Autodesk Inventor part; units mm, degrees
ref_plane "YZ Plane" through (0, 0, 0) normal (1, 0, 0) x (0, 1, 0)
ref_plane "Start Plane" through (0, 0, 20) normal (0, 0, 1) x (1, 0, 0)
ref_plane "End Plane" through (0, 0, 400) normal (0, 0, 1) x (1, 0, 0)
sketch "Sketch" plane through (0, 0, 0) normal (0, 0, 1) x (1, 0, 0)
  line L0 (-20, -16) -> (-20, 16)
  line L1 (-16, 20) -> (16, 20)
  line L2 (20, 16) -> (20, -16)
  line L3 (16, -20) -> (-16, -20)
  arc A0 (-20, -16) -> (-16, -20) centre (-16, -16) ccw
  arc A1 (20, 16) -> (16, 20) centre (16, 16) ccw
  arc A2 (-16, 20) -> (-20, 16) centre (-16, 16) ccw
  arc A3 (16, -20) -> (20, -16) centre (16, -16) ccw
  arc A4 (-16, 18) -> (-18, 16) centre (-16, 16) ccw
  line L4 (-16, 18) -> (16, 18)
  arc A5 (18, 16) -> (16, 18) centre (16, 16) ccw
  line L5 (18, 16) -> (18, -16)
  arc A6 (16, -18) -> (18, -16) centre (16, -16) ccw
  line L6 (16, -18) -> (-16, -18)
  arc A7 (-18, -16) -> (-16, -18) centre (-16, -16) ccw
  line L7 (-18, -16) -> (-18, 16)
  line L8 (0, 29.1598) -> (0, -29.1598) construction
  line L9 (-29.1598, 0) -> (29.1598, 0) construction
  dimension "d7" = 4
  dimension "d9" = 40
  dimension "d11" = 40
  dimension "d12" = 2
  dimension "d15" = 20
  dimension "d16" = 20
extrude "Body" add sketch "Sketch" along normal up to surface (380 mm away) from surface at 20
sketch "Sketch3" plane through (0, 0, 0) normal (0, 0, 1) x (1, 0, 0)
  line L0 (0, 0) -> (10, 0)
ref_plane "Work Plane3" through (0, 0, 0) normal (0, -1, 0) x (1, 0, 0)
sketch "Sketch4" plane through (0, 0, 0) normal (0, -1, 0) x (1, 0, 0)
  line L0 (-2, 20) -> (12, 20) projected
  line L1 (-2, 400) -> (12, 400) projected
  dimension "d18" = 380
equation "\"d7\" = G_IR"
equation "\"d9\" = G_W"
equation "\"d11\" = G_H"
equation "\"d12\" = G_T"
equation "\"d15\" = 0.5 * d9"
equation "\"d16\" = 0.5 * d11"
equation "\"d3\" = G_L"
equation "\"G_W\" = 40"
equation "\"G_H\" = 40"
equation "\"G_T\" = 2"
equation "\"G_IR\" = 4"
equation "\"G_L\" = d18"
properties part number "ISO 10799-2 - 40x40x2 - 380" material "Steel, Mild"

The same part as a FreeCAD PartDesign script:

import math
import FreeCAD as App
import Part
import Sketcher
from FreeCAD import Vector
Q = App.Units.Quantity

doc = App.newDocument("Part")
body = doc.addObject("PartDesign::Body", "Body")

# Sketch on XY plane
sketch1 = body.newObject("Sketcher::SketchObject", "Sketch")
sketch1.AttachmentSupport = (doc.getObject("XY_Plane"), [""])
sketch1.MapMode = "FlatFace"
sketch1.AttachmentOffset = App.Placement(Vector(0, 0, 20), App.Rotation())
sketch1.addGeometry([
    Part.LineSegment(Vector(-20, 16, 0), Vector(-20, -16, 0)),  # 0
    Part.ArcOfCircle(Part.Circle(Vector(-16, -16, 0), Vector(0, 0, 1), 4), math.radians(180), math.radians(270)),  # 1
    Part.LineSegment(Vector(-16, -20, 0), Vector(16, -20, 0)),  # 2
    Part.ArcOfCircle(Part.Circle(Vector(16, -16, 0), Vector(0, 0, 1), 4), math.radians(-90), math.radians(0)),  # 3
    Part.LineSegment(Vector(20, -16, 0), Vector(20, 16, 0)),  # 4
    Part.ArcOfCircle(Part.Circle(Vector(16, 16, 0), Vector(0, 0, 1), 4), math.radians(0), math.radians(90)),  # 5
    Part.LineSegment(Vector(16, 20, 0), Vector(-16, 20, 0)),  # 6
    Part.ArcOfCircle(Part.Circle(Vector(-16, 16, 0), Vector(0, 0, 1), 4), math.radians(90), math.radians(180)),  # 7
    Part.ArcOfCircle(Part.Circle(Vector(-16, 16, 0), Vector(0, 0, 1), 2), math.radians(90), math.radians(180)),  # 8
    Part.LineSegment(Vector(-16, 18, 0), Vector(16, 18, 0)),  # 9
    Part.ArcOfCircle(Part.Circle(Vector(16, 16, 0), Vector(0, 0, 1), 2), math.radians(0), math.radians(90)),  # 10
    Part.LineSegment(Vector(18, 16, 0), Vector(18, -16, 0)),  # 11
    Part.ArcOfCircle(Part.Circle(Vector(16, -16, 0), Vector(0, 0, 1), 2), math.radians(-90), math.radians(0)),  # 12
    Part.LineSegment(Vector(16, -18, 0), Vector(-16, -18, 0)),  # 13
    Part.ArcOfCircle(Part.Circle(Vector(-16, -16, 0), Vector(0, 0, 1), 2), math.radians(180), math.radians(270)),  # 14
    Part.LineSegment(Vector(-18, -16, 0), Vector(-18, 16, 0)),  # 15
], False)
sketch1.addConstraint([
    Sketcher.Constraint("Tangent", 0, 2, 1, 1),
    Sketcher.Constraint("Tangent", 1, 2, 2, 1),
    Sketcher.Constraint("Tangent", 2, 2, 3, 1),
    Sketcher.Constraint("Tangent", 3, 2, 4, 1),
    Sketcher.Constraint("Tangent", 4, 2, 5, 1),
    Sketcher.Constraint("Tangent", 5, 2, 6, 1),
    Sketcher.Constraint("Tangent", 6, 2, 7, 1),
    Sketcher.Constraint("Tangent", 7, 2, 0, 1),
    Sketcher.Constraint("Tangent", 8, 1, 9, 1),
    Sketcher.Constraint("Tangent", 9, 2, 10, 2),
    Sketcher.Constraint("Tangent", 10, 1, 11, 1),
    Sketcher.Constraint("Tangent", 11, 2, 12, 2),
    Sketcher.Constraint("Tangent", 12, 1, 13, 1),
    Sketcher.Constraint("Tangent", 13, 2, 14, 2),
    Sketcher.Constraint("Tangent", 14, 1, 15, 1),
    Sketcher.Constraint("Tangent", 15, 2, 8, 2),
    Sketcher.Constraint("Vertical", 0),
    Sketcher.Constraint("Horizontal", 2),
    Sketcher.Constraint("Vertical", 4),
    Sketcher.Constraint("Horizontal", 6),
    Sketcher.Constraint("Horizontal", 9),
    Sketcher.Constraint("Vertical", 11),
    Sketcher.Constraint("Horizontal", 13),
    Sketcher.Constraint("Vertical", 15),
    Sketcher.Constraint("Coincident", 8, 3, 7, 3),
    Sketcher.Constraint("Coincident", 10, 3, 5, 3),
    Sketcher.Constraint("Coincident", 12, 3, 3, 3),
    Sketcher.Constraint("Equal", 1, 3),
    Sketcher.Constraint("Equal", 3, 5),
    Sketcher.Constraint("Equal", 5, 7),
    Sketcher.Constraint("Equal", 12, 14),
    Sketcher.Constraint("Symmetric", 1, 3, 5, 3, -1, 1),
    Sketcher.Constraint("Equal", 13, 0),
    Sketcher.Constraint("Radius", 1, Q("4 mm")),
    Sketcher.Constraint("Radius", 8, Q("2 mm")),
    Sketcher.Constraint("DistanceX", 0, 2, -1, 1, Q("20 mm")),
])
pad1 = body.newObject("PartDesign::Pad", "Pad")
pad1.Profile = sketch1
pad1.Length = 380

doc.recompute()
